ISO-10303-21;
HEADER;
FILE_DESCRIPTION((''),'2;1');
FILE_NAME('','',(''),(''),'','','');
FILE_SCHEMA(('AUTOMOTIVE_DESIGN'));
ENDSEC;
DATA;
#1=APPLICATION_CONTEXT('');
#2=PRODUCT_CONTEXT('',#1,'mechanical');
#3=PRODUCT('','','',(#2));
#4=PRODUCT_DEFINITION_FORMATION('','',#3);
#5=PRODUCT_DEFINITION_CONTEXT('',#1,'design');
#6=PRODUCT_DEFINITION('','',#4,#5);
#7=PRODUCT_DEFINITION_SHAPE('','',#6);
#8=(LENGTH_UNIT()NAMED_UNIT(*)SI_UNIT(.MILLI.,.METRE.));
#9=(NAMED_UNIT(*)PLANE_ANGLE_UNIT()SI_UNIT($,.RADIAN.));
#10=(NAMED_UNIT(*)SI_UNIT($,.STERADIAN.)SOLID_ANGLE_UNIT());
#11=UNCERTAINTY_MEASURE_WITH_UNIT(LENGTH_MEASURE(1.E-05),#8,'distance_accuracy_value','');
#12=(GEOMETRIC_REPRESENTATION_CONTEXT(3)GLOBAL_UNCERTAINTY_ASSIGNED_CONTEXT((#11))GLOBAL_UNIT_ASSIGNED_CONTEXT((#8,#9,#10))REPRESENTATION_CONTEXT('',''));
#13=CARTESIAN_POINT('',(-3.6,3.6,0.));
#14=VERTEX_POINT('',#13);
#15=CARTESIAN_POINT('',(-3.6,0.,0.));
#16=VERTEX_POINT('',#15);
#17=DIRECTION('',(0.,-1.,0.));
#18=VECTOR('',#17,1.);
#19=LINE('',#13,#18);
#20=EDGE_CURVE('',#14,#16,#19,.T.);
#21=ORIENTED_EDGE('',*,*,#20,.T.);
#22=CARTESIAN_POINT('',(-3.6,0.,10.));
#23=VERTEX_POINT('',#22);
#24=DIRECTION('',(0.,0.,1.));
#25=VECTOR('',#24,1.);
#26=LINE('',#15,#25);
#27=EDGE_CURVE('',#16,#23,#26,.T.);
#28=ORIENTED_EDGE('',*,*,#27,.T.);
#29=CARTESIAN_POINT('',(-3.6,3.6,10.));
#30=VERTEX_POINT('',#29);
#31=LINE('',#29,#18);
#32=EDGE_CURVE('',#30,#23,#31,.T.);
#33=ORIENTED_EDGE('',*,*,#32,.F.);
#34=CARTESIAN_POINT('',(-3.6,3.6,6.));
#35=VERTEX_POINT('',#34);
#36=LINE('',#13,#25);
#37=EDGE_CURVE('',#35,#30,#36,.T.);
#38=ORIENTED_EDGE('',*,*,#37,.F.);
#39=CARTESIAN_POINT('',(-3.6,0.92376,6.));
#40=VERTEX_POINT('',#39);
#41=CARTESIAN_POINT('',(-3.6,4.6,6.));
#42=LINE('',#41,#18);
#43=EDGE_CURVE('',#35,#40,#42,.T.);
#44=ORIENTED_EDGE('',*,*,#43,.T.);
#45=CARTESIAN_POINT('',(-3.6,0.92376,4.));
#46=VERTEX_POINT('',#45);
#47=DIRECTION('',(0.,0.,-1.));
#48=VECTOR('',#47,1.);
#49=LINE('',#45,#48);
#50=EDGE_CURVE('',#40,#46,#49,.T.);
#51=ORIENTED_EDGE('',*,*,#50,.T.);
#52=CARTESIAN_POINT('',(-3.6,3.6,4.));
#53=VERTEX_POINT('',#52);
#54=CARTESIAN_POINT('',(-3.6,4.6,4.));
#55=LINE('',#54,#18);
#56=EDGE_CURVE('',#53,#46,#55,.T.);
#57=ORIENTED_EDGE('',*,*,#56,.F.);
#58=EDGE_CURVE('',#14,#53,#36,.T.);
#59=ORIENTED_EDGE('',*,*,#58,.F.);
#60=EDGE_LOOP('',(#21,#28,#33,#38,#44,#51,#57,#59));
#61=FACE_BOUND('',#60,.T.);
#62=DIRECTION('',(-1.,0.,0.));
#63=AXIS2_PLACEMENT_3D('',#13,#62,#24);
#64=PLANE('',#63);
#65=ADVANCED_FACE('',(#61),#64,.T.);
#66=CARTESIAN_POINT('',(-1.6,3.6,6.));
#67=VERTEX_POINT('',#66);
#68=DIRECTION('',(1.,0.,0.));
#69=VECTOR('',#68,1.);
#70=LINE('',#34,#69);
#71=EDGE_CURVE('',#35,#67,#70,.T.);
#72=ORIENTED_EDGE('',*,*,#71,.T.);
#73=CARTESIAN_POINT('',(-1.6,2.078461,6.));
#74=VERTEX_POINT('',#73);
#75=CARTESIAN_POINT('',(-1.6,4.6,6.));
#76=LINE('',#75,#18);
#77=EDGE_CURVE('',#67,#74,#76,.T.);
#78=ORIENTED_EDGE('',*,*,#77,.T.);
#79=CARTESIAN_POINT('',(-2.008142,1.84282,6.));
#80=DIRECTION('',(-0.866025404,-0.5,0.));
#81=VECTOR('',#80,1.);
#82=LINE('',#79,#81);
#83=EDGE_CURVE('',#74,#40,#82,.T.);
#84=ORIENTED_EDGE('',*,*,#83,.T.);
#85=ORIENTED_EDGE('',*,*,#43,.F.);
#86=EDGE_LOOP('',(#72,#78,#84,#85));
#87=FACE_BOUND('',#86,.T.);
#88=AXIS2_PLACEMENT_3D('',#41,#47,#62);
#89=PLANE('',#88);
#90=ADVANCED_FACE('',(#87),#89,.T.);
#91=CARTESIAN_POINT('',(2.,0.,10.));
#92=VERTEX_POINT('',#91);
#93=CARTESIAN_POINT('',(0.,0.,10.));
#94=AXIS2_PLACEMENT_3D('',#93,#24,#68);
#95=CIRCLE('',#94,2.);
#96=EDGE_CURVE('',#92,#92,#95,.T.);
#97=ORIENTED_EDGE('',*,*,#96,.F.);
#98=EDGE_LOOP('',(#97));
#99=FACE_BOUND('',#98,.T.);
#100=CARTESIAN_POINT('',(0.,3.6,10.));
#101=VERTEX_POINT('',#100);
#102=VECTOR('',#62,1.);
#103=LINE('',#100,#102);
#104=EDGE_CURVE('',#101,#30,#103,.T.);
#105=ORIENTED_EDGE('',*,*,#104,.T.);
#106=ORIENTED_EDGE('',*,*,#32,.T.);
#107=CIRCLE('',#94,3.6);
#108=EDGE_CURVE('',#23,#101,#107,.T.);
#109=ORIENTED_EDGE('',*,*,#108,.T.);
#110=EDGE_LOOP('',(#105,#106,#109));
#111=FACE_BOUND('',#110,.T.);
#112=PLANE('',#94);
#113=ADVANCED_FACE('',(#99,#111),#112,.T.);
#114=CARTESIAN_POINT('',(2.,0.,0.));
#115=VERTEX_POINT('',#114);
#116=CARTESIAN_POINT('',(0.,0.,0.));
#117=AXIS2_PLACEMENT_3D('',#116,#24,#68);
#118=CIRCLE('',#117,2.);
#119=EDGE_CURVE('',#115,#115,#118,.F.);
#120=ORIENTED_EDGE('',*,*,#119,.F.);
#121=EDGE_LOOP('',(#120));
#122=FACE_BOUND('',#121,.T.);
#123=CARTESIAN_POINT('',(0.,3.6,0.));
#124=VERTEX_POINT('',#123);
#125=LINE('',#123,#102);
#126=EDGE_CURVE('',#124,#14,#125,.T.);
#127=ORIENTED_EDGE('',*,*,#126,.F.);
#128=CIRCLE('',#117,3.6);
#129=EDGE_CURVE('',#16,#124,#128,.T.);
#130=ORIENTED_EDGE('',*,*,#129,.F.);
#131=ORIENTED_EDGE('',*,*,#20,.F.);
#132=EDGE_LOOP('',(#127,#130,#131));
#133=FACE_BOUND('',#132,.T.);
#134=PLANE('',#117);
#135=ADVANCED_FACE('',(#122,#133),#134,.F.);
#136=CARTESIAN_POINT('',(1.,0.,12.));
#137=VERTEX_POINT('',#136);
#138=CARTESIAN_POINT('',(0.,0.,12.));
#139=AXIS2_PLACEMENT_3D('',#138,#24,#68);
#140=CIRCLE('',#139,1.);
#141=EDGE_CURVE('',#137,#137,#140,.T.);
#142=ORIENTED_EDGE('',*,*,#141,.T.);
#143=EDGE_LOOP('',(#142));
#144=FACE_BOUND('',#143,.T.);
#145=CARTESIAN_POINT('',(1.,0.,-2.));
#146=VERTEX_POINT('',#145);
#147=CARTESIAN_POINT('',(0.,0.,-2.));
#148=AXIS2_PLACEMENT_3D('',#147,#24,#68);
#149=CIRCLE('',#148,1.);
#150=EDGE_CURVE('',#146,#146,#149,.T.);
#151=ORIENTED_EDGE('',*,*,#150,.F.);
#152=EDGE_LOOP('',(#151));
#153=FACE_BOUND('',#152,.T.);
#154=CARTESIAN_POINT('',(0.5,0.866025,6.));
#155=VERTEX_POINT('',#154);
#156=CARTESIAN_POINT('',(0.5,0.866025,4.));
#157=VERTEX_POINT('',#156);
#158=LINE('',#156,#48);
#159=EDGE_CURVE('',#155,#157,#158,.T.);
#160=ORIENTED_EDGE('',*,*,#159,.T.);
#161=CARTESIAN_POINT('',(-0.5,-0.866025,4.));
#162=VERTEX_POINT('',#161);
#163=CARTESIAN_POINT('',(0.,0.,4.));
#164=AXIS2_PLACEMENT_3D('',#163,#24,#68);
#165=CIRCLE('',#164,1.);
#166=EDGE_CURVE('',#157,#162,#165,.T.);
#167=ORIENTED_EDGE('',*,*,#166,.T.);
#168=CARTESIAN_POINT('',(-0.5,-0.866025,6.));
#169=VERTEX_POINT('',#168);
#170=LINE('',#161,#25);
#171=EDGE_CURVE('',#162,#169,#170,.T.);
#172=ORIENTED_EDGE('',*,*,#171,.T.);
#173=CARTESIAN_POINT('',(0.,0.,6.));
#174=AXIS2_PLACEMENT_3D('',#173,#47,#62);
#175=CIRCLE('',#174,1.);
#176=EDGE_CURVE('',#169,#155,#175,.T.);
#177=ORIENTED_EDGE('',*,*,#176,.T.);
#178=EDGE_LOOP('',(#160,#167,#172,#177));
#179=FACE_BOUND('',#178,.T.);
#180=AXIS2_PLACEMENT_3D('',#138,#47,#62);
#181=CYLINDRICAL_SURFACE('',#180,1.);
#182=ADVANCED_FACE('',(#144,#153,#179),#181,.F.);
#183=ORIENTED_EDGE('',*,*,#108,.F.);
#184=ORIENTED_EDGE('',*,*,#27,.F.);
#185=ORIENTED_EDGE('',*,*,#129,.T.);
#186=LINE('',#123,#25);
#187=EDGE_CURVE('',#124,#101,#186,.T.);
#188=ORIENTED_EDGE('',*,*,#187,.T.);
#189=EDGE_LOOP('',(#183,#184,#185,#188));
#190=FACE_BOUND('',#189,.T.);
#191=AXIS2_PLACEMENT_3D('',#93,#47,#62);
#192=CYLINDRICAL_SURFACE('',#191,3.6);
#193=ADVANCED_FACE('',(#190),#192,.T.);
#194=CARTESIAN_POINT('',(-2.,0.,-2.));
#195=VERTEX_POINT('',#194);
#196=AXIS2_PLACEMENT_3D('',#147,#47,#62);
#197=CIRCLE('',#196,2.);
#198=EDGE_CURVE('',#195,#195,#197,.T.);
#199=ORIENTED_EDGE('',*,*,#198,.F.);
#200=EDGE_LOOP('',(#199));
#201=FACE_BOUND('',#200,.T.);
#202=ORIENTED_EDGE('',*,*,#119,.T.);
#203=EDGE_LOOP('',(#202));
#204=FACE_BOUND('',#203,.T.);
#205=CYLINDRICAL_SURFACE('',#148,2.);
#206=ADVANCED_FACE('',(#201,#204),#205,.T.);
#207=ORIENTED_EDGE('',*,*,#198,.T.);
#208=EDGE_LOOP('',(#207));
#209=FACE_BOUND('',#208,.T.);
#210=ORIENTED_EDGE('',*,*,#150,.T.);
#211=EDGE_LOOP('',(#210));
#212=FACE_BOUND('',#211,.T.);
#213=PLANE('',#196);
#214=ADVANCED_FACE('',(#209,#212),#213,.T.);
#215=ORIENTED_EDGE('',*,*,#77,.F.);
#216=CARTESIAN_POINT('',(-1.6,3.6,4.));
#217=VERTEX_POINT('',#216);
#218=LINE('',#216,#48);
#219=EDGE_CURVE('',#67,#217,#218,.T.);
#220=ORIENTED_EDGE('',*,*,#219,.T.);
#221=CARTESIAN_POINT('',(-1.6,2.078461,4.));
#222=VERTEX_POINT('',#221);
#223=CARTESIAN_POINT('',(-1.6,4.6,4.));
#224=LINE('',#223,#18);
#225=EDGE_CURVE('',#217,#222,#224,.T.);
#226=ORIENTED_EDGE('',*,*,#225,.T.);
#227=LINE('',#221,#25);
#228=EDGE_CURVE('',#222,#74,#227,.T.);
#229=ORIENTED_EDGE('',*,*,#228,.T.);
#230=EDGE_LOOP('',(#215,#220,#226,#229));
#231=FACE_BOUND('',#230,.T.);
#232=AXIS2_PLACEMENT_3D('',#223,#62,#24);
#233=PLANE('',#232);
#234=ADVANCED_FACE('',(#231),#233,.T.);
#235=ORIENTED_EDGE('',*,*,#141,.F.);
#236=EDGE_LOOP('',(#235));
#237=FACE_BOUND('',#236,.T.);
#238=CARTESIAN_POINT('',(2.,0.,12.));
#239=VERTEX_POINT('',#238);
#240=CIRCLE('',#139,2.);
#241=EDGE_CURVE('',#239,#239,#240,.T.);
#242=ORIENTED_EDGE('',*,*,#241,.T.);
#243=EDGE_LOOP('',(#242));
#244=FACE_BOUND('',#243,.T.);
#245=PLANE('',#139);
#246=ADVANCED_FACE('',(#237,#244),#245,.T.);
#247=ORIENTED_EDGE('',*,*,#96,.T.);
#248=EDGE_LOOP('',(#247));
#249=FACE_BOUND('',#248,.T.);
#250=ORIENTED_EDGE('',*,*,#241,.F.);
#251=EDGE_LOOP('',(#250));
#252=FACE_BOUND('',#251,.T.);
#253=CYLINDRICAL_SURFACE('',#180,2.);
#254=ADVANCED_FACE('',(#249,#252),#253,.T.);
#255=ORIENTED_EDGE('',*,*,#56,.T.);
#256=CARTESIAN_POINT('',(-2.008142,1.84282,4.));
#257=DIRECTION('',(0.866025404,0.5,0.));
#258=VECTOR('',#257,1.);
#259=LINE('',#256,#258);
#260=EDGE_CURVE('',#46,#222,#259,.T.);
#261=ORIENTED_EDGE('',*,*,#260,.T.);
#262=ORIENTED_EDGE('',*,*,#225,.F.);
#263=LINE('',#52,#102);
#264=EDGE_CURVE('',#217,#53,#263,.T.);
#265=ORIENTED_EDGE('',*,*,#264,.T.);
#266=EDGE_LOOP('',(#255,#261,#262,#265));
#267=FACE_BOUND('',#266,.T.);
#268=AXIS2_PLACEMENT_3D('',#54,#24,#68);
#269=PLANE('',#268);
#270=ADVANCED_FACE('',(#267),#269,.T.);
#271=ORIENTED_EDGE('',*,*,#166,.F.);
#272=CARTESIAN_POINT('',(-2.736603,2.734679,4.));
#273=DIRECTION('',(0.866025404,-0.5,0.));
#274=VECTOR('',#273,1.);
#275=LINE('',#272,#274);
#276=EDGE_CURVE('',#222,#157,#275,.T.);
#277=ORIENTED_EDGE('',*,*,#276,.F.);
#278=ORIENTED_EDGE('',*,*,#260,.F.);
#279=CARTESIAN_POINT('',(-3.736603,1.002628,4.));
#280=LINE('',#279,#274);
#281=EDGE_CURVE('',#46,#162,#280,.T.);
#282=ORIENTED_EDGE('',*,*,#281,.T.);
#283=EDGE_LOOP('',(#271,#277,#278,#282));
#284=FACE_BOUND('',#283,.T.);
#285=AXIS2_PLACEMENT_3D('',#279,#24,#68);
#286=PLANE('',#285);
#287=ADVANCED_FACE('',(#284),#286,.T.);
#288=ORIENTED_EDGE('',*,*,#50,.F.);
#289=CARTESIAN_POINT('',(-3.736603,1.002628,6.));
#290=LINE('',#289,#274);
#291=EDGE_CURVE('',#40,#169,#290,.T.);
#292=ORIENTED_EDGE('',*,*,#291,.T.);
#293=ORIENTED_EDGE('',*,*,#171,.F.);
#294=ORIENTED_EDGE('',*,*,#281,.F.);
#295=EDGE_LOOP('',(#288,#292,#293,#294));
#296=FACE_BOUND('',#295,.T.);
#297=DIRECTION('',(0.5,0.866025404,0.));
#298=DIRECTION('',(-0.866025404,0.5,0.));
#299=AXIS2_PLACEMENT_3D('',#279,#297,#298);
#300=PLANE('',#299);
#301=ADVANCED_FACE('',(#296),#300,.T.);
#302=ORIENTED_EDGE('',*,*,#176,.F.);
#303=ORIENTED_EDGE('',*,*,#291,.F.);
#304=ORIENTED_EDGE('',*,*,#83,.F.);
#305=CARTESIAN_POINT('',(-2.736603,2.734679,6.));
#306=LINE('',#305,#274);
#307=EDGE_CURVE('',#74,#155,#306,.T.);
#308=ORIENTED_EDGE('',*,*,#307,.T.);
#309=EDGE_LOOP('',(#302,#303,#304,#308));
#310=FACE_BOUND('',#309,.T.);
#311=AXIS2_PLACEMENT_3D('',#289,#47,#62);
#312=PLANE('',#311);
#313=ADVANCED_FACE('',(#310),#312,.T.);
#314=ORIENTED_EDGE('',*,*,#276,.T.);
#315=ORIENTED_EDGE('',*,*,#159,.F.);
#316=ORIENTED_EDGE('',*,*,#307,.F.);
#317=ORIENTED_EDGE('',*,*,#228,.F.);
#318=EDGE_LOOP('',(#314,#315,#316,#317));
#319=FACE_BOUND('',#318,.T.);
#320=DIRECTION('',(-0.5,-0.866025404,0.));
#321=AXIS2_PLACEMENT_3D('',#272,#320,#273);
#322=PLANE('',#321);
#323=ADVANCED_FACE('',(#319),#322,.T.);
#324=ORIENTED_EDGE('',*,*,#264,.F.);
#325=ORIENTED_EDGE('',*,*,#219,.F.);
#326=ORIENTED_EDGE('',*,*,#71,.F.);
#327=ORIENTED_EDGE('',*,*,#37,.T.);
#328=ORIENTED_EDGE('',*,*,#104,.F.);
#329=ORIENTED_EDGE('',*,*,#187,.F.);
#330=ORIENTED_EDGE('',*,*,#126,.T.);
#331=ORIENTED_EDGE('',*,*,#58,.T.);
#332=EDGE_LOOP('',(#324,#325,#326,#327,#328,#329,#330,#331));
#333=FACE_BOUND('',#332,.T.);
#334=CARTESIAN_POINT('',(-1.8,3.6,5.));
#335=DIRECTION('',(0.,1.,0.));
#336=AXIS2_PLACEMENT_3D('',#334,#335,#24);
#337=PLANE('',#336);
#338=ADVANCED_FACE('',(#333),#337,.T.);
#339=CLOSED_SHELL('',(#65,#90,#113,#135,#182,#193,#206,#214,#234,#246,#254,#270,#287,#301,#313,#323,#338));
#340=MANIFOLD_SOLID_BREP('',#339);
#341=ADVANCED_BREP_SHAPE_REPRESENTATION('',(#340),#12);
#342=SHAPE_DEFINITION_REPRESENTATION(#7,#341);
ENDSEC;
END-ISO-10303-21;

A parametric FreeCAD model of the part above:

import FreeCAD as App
import Part
import Sketcher

V = App.Vector
Q = App.Units.Quantity

doc = App.newDocument("Part")
body = doc.addObject("PartDesign::Body", "Body")

# Sketch on XY plane
sketch1 = body.newObject("Sketcher::SketchObject", "Sketch")
sketch1.AttachmentSupport = (doc.getObject("XY_Plane"), [""])
sketch1.MapMode = "FlatFace"
sketch1.addGeometry(Part.Circle(V(0, 0, 0), V(0, 0, 1), 3.6), False)
sketch1.addConstraint(Sketcher.Constraint("Coincident", 0, 3, -1, 1))
sketch1.addConstraint(Sketcher.Constraint("Diameter", 0, 7.2))
pad1 = body.newObject("PartDesign::Pad", "Pad")
pad1.Profile = sketch1
pad1.Length = 10

# Sketch on XY plane
sketch2 = body.newObject("Sketcher::SketchObject", "Sketch001")
sketch2.AttachmentSupport = (doc.getObject("XY_Plane"), [""])
sketch2.MapMode = "FlatFace"
sketch2.AttachmentOffset = App.Placement(V(0, 0, 10), App.Rotation())
sketch2.addGeometry(Part.Circle(V(0, 0, 0), V(0, 0, 1), 2), False)
sketch2.addGeometry(Part.Circle(V(0, 0, 0), V(0, 0, 1), 1), False)
sketch2.addConstraint(Sketcher.Constraint("Coincident", 0, 3, -1, 1))
sketch2.addConstraint(Sketcher.Constraint("Coincident", 1, 3, -1, 1))
sketch2.addConstraint(Sketcher.Constraint("Diameter", 0, 4.0))
sketch2.addConstraint(Sketcher.Constraint("Diameter", 1, 2.0))
pad2 = body.newObject("PartDesign::Pad", "Pad001")
pad2.Profile = sketch2
pad2.Length = 2

# Sketch on XY plane
sketch3 = body.newObject("Sketcher::SketchObject", "Sketch002")
sketch3.AttachmentSupport = (doc.getObject("XY_Plane"), [""])
sketch3.MapMode = "FlatFace"
sketch3.addGeometry(Part.Circle(V(0, 0, 0), V(0, 0, 1), 2), False)
sketch3.addConstraint(Sketcher.Constraint("Coincident", 0, 3, -1, 1))
sketch3.addConstraint(Sketcher.Constraint("Diameter", 0, 4.0))
pad3 = body.newObject("PartDesign::Pad", "Pad002")
pad3.Profile = sketch3
pad3.Length = 2
pad3.Reversed = True

# Sketch on XZ plane
sketch4 = body.newObject("Sketcher::SketchObject", "Sketch003")
sketch4.AttachmentSupport = (doc.getObject("XZ_Plane"), [""])
sketch4.MapMode = "FlatFace"
sketch4.addGeometry(Part.Circle(V(-1.8, 5, 0), V(0, 0, 1), 1.8), False)
sketch4.addConstraint(Sketcher.Constraint("Diameter", 0, 3.6))
sketch4.addConstraint(Sketcher.Constraint("DistanceY", -1, 1, 0, 3, 5.0))
sketch4.addConstraint(Sketcher.Constraint("DistanceX", 0, 3, -1, 1, 1.8))
pad4 = body.newObject("PartDesign::Pad", "Pad003")
pad4.Profile = sketch4
pad4.Length = 3.6
pad4.Reversed = True

# Sketch on XY plane
sketch5 = body.newObject("Sketcher::SketchObject", "Sketch004")
sketch5.AttachmentSupport = (doc.getObject("XY_Plane"), [""])
sketch5.MapMode = "FlatFace"
sketch5.AttachmentOffset = App.Placement(V(0, 0, 10), App.Rotation())
sketch5.addGeometry(Part.Circle(V(0, 0, 0), V(0, 0, 1), 1), False)
sketch5.addConstraint(Sketcher.Constraint("Coincident", 0, 3, -1, 1))
sketch5.addConstraint(Sketcher.Constraint("Diameter", 0, 2.0))
pocket1 = body.newObject("PartDesign::Pocket", "Pocket")
pocket1.Profile = sketch5
pocket1.Type = "ThroughAll"
pocket1.Midplane = True

# Sketch on XY plane
sketch6 = body.newObject("Sketcher::SketchObject", "Sketch005")
sketch6.AttachmentSupport = (doc.getObject("XY_Plane"), [""])
sketch6.MapMode = "FlatFace"
sketch6.AttachmentOffset = App.Placement(V(0, 0, 10), App.Rotation())
sketch6.addGeometry(Part.LineSegment(V(-3.6, 0, 0), V(0, 3.6, 0)), False)
sketch6.addGeometry(Part.LineSegment(V(0, 3.6, 0), V(-3.6, 3.6, 0)), False)
sketch6.addGeometry(Part.LineSegment(V(-3.6, 3.6, 0), V(-3.6, 0, 0)), False)
sketch6.addConstraint(Sketcher.Constraint("Coincident", 0, 2, 1, 1))
sketch6.addConstraint(Sketcher.Constraint("Coincident", 1, 2, 2, 1))
sketch6.addConstraint(Sketcher.Constraint("Coincident", 2, 2, 0, 1))
sketch6.addConstraint(Sketcher.Constraint("Horizontal", 1))
sketch6.addConstraint(Sketcher.Constraint("Vertical", 2))
sketch6.addConstraint(Sketcher.Constraint("PointOnObject", 0, 2, -2))
sketch6.addConstraint(Sketcher.Constraint("PointOnObject", 2, 2, -1))
sketch6.addConstraint(Sketcher.Constraint("Equal", 1, 2))
sketch6.addConstraint(Sketcher.Constraint("DistanceX", 1, 2, 1, 1, 3.6))
pad5 = body.newObject("PartDesign::Pad", "Pad004")
pad5.Profile = sketch6
pad5.Length = 10
pad5.Reversed = True

# Sketch on XZ plane
sketch7 = body.newObject("Sketcher::SketchObject", "Sketch006")
sketch7.AttachmentSupport = (doc.getObject("XZ_Plane"), [""])
sketch7.MapMode = "FlatFace"
sketch7.AttachmentOffset = App.Placement(V(0, 0, -3.6), App.Rotation())
sketch7.addGeometry(Part.LineSegment(V(-3.6, 4, 0), V(-3.6, 6, 0)), False)
sketch7.addGeometry(Part.LineSegment(V(-3.6, 6, 0), V(-1.6, 6, 0)), False)
sketch7.addGeometry(Part.LineSegment(V(-1.6, 6, 0), V(-1.6, 4, 0)), False)
sketch7.addGeometry(Part.LineSegment(V(-1.6, 4, 0), V(-3.6, 4, 0)), False)
sketch7.addConstraint(Sketcher.Constraint("Coincident", 0, 2, 1, 1))
sketch7.addConstraint(Sketcher.Constraint("Coincident", 1, 2, 2, 1))
sketch7.addConstraint(Sketcher.Constraint("Coincident", 2, 2, 3, 1))
sketch7.addConstraint(Sketcher.Constraint("Coincident", 3, 2, 0, 1))
sketch7.addConstraint(Sketcher.Constraint("Vertical", 0))
sketch7.addConstraint(Sketcher.Constraint("Horizontal", 1))
sketch7.addConstraint(Sketcher.Constraint("Vertical", 2))
sketch7.addConstraint(Sketcher.Constraint("Horizontal", 3))
sketch7.addConstraint(Sketcher.Constraint("Equal", 3, 0))
sketch7.addConstraint(Sketcher.Constraint("DistanceX", 1, 1, 1, 2, 2.0))
sketch7.addConstraint(Sketcher.Constraint("DistanceY", -1, 1, 0, 2, 6.0))
sketch7.addConstraint(Sketcher.Constraint("DistanceX", 0, 2, -1, 1, 3.6))

# Sketch on XY plane
sketch8 = body.newObject("Sketcher::SketchObject", "Sketch007")
sketch8.AttachmentSupport = (doc.getObject("XY_Plane"), [""])
sketch8.MapMode = "FlatFace"
sketch8.AttachmentOffset = App.Placement(V(0, 0, 5), App.Rotation())
sketch8.addGeometry(Part.LineSegment(V(-2.6, 3.6, 0), V(-2.6, 1.5, 0)), False)
sketch8.addGeometry(Part.LineSegment(V(-2.6, 1.5, 0), V(0, 0, 0)), False)
sketch8.addConstraint(Sketcher.Constraint("Coincident", 0, 2, 1, 1))
sketch8.addConstraint(Sketcher.Constraint("Vertical", 0))
sketch8.addConstraint(Sketcher.Constraint("Coincident", 1, 2, -1, 1))
sketch8.addConstraint(Sketcher.Constraint("Angle", 1, Q("-30 deg")))
sketch8.addConstraint(Sketcher.Constraint("DistanceX", 0, 1, -1, 1, 2.6))
sketch8.addConstraint(Sketcher.Constraint("DistanceY", -1, 1, 0, 1, 3.6))
doc.recompute()

subtractivepipe = body.newObject("PartDesign::SubtractivePipe", "SubtractivePipe")
subtractivepipe.Profile = sketch7
subtractivepipe.Spine = (sketch8, ["Edge1", "Edge2"])
subtractivepipe.Transition = "Right corner"

doc.recompute()
